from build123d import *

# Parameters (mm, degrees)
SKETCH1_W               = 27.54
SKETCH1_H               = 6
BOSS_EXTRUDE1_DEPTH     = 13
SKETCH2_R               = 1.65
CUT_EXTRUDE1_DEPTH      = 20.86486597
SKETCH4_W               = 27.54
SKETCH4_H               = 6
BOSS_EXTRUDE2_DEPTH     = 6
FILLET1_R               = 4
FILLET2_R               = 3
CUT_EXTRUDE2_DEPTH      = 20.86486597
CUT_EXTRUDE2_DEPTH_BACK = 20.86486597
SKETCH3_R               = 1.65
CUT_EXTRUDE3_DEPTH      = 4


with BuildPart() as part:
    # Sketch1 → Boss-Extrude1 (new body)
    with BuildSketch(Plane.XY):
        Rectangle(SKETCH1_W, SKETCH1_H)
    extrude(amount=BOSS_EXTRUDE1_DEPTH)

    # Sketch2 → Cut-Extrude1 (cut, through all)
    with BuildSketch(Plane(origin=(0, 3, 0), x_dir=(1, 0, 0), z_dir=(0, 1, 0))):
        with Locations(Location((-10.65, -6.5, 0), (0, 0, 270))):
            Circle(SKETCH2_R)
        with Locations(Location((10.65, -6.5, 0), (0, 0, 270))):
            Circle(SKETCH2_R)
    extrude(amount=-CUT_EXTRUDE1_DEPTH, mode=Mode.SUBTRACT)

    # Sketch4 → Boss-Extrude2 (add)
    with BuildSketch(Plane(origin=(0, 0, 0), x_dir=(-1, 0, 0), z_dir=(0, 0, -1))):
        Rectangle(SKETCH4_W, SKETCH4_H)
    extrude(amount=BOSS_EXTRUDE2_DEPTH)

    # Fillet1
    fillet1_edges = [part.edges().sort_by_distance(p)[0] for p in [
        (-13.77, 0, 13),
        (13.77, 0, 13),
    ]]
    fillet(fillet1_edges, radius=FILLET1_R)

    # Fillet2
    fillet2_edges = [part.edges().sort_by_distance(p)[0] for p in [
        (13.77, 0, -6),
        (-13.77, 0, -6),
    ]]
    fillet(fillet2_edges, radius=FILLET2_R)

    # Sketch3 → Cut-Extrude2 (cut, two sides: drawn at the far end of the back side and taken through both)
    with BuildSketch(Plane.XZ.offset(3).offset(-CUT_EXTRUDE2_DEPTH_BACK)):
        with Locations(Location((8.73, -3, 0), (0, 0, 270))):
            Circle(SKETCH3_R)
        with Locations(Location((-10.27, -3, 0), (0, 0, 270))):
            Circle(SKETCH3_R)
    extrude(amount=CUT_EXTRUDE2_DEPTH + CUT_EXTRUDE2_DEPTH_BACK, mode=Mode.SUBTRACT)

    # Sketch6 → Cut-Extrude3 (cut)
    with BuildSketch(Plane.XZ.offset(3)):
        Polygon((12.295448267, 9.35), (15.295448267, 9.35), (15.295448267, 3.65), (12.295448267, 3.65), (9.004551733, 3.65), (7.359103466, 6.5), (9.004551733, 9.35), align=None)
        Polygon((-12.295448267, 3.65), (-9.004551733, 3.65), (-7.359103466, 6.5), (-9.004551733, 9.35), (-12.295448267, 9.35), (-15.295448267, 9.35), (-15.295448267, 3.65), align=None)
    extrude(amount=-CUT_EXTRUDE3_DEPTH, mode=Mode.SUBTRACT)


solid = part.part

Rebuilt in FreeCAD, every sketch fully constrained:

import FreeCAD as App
import Part
import Sketcher
Q = App.Units.Quantity


def edges_at(feature, points):
    """Names of the edges that pass closest to the given points."""
    edges = feature.Shape.Edges
    near = lambda p: min(range(len(edges)), key=lambda i: edges[i].distToShape(Part.Vertex(*p))[0])
    return sorted({f"Edge{near(p) + 1}" for p in points})

doc = App.newDocument("Part")
body = doc.addObject("PartDesign::Body", "Body")

# Sketch on XY plane
sketch1 = doc.addObject("Sketcher::SketchObject", "Sketch")
body.addObject(sketch1)
sketch1.AttachmentSupport = (doc.XY_Plane, [""])
sketch1.MapMode = "FlatFace"
sketch1.addGeometry(Part.LineSegment(App.Vector(-14, 3, 0), App.Vector(-14, -3, 0)), False)
sketch1.addGeometry(Part.LineSegment(App.Vector(-14, -3, 0), App.Vector(14, -3, 0)), False)
sketch1.addGeometry(Part.LineSegment(App.Vector(14, -3, 0), App.Vector(14, 3, 0)), False)
sketch1.addGeometry(Part.LineSegment(App.Vector(14, 3, 0), App.Vector(-14, 3, 0)), False)
sketch1.addConstraint(Sketcher.Constraint("Coincident", 0, 2, 1, 1))
sketch1.addConstraint(Sketcher.Constraint("Coincident", 1, 2, 2, 1))
sketch1.addConstraint(Sketcher.Constraint("Coincident", 2, 2, 3, 1))
sketch1.addConstraint(Sketcher.Constraint("Coincident", 3, 2, 0, 1))
sketch1.addConstraint(Sketcher.Constraint("Vertical", 0))
sketch1.addConstraint(Sketcher.Constraint("Horizontal", 1))
sketch1.addConstraint(Sketcher.Constraint("Vertical", 2))
sketch1.addConstraint(Sketcher.Constraint("Horizontal", 3))
sketch1.addConstraint(Sketcher.Constraint("Symmetric", 0, 2, 2, 2, -1, 1))
sketch1.addConstraint(Sketcher.Constraint("DistanceY", 0, 2, 0, 1, Q("6 mm")))
sketch1.addConstraint(Sketcher.Constraint("DistanceX", 1, 1, 1, 2, Q("27.54 mm")))
pad1 = doc.addObject("PartDesign::Pad", "Pad")
body.addObject(pad1)
pad1.Profile = sketch1
pad1.Length = 13

# Sketch on XZ plane
sketch2 = doc.addObject("Sketcher::SketchObject", "Sketch001")
body.addObject(sketch2)
sketch2.AttachmentSupport = (doc.XZ_Plane, [""])
sketch2.MapMode = "FlatFace"
sketch2.AttachmentOffset = App.Placement(App.Vector(0, 0, -3), App.Rotation())
sketch2.addGeometry(Part.Circle(App.Vector(-10.7, 6.5, 0), App.Vector(0, 0, 1), 1.6), False)
sketch2.addGeometry(Part.Circle(App.Vector(10.7, 6.5, 0), App.Vector(0, 0, 1), 1.6), False)
sketch2.addConstraint(Sketcher.Constraint("Equal", 0, 1))
sketch2.addConstraint(Sketcher.Constraint("Symmetric", 0, 3, 1, 3, -2))
sketch2.addConstraint(Sketcher.Constraint("Diameter", 0, Q("3.3 mm")))
sketch2.addConstraint(Sketcher.Constraint("DistanceY", -1, 1, 0, 3, Q("6.5 mm")))
sketch2.addConstraint(Sketcher.Constraint("DistanceX", 0, 3, 1, 3, Q("21.3 mm")))
pocket1 = doc.addObject("PartDesign::Pocket", "Pocket")
body.addObject(pocket1)
pocket1.Profile = sketch2
pocket1.Type = "ThroughAll"
pocket1.Reversed = True

# Sketch on XY plane
sketch3 = doc.addObject("Sketcher::SketchObject", "Sketch002")
body.addObject(sketch3)
sketch3.AttachmentSupport = (doc.XY_Plane, [""])
sketch3.MapMode = "FlatFace"
sketch3.addGeometry(Part.LineSegment(App.Vector(14, 3, 0), App.Vector(14, -3, 0)), False)
sketch3.addGeometry(Part.LineSegment(App.Vector(14, -3, 0), App.Vector(-14, -3, 0)), False)
sketch3.addGeometry(Part.LineSegment(App.Vector(-14, -3, 0), App.Vector(-14, 3, 0)), False)
sketch3.addGeometry(Part.LineSegment(App.Vector(-14, 3, 0), App.Vector(14, 3, 0)), False)
sketch3.addConstraint(Sketcher.Constraint("Coincident", 0, 2, 1, 1))
sketch3.addConstraint(Sketcher.Constraint("Coincident", 1, 2, 2, 1))
sketch3.addConstraint(Sketcher.Constraint("Coincident", 2, 2, 3, 1))
sketch3.addConstraint(Sketcher.Constraint("Coincident", 3, 2, 0, 1))
sketch3.addConstraint(Sketcher.Constraint("Vertical", 0))
sketch3.addConstraint(Sketcher.Constraint("Horizontal", 1))
sketch3.addConstraint(Sketcher.Constraint("Vertical", 2))
sketch3.addConstraint(Sketcher.Constraint("Horizontal", 3))
sketch3.addConstraint(Sketcher.Constraint("Symmetric", 0, 2, 2, 2, -1, 1))
sketch3.addConstraint(Sketcher.Constraint("DistanceY", 0, 2, 0, 1, Q("6 mm")))
sketch3.addConstraint(Sketcher.Constraint("DistanceX", 1, 2, 1, 1, Q("27.54 mm")))
pad2 = doc.addObject("PartDesign::Pad", "Pad001")
body.addObject(pad2)
pad2.Profile = sketch3
pad2.Length = 6
pad2.Reversed = True
doc.recompute()

fillet = doc.addObject("PartDesign::Fillet", "Fillet")
body.addObject(fillet)
fillet.Base = (pad2, edges_at(pad2, [(-13.77, 0, 13), (13.77, 0, 13)]))
fillet.Radius = 4
doc.recompute()

fillet2 = doc.addObject("PartDesign::Fillet", "Fillet001")
body.addObject(fillet2)
fillet2.Base = (fillet, edges_at(fillet, [(13.77, 0, -6), (-13.77, 0, -6)]))
fillet2.Radius = 3

# Sketch on XZ plane
sketch4 = doc.addObject("Sketcher::SketchObject", "Sketch003")
body.addObject(sketch4)
sketch4.AttachmentSupport = (doc.XZ_Plane, [""])
sketch4.MapMode = "FlatFace"
sketch4.AttachmentOffset = App.Placement(App.Vector(0, 0, 3), App.Rotation())
sketch4.addGeometry(Part.Circle(App.Vector(8.7, -3, 0), App.Vector(0, 0, 1), 1.6), False)
sketch4.addGeometry(Part.Circle(App.Vector(-10.3, -3, 0), App.Vector(0, 0, 1), 1.6), False)
sketch4.addConstraint(Sketcher.Constraint("Equal", 0, 1))
sketch4.addConstraint(Sketcher.Constraint("Horizontal", 0, 3, 1, 3))
sketch4.addConstraint(Sketcher.Constraint("Diameter", 0, Q("3.3 mm")))
sketch4.addConstraint(Sketcher.Constraint("DistanceY", 0, 3, -1, 1, Q("3 mm")))
sketch4.addConstraint(Sketcher.Constraint("DistanceX", 1, 3, 0, 3, Q("19 mm")))
sketch4.addConstraint(Sketcher.Constraint("DistanceX", -1, 1, 0, 3, Q("8.73 mm")))
pocket2 = doc.addObject("PartDesign::Pocket", "Pocket001")
body.addObject(pocket2)
pocket2.Profile = sketch4
pocket2.Type = "ThroughAll"
pocket2.Midplane = True

# Sketch on XZ plane
sketch5 = doc.addObject("Sketcher::SketchObject", "Sketch004")
body.addObject(sketch5)
sketch5.AttachmentSupport = (doc.XZ_Plane, [""])
sketch5.MapMode = "FlatFace"
sketch5.AttachmentOffset = App.Placement(App.Vector(0, 0, 3), App.Rotation())
sketch5.addGeometry(Part.LineSegment(App.Vector(15.3, 9.3, 0), App.Vector(9, 9.3, 0)), False)
sketch5.addGeometry(Part.LineSegment(App.Vector(9, 9.3, 0), App.Vector(7.4, 6.5, 0)), False)
sketch5.addGeometry(Part.LineSegment(App.Vector(7.4, 6.5, 0), App.Vector(9, 3.6, 0)), False)
sketch5.addGeometry(Part.LineSegment(App.Vector(9, 3.6, 0), App.Vector(15.3, 3.6, 0)), False)
sketch5.addGeometry(Part.LineSegment(App.Vector(15.3, 3.6, 0), App.Vector(15.3, 9.3, 0)), False)
sketch5.addGeometry(Part.LineSegment(App.Vector(-9, 3.6, 0), App.Vector(-7.4, 6.5, 0)), False)
sketch5.addGeometry(Part.LineSegment(App.Vector(-7.4, 6.5, 0), App.Vector(-9, 9.3, 0)), False)
sketch5.addGeometry(Part.LineSegment(App.Vector(-9, 9.3, 0), App.Vector(-15.3, 9.3, 0)), False)
sketch5.addGeometry(Part.LineSegment(App.Vector(-15.3, 9.3, 0), App.Vector(-15.3, 3.6, 0)), False)
sketch5.addGeometry(Part.LineSegment(App.Vector(-15.3, 3.6, 0), App.Vector(-9, 3.6, 0)), False)
sketch5.addConstraint(Sketcher.Constraint("Coincident", 0, 2, 1, 1))
sketch5.addConstraint(Sketcher.Constraint("Coincident", 1, 2, 2, 1))
sketch5.addConstraint(Sketcher.Constraint("Coincident", 2, 2, 3, 1))
sketch5.addConstraint(Sketcher.Constraint("Coincident", 3, 2, 4, 1))
sketch5.addConstraint(Sketcher.Constraint("Coincident", 4, 2, 0, 1))
sketch5.addConstraint(Sketcher.Constraint("Coincident", 5, 2, 6, 1))
sketch5.addConstraint(Sketcher.Constraint("Coincident", 6, 2, 7, 1))
sketch5.addConstraint(Sketcher.Constraint("Coincident", 7, 2, 8, 1))
sketch5.addConstraint(Sketcher.Constraint("Coincident", 8, 2, 9, 1))
sketch5.addConstraint(Sketcher.Constraint("Coincident", 9, 2, 5, 1))
sketch5.addConstraint(Sketcher.Constraint("Horizontal", 0))
sketch5.addConstraint(Sketcher.Constraint("Horizontal", 3))
sketch5.addConstraint(Sketcher.Constraint("Vertical", 4))
sketch5.addConstraint(Sketcher.Constraint("Horizontal", 7))
sketch5.addConstraint(Sketcher.Constraint("Vertical", 8))
sketch5.addConstraint(Sketcher.Constraint("Horizontal", 9))
sketch5.addConstraint(Sketcher.Constraint("Symmetric", 1, 2, 5, 2, -2))
sketch5.addConstraint(Sketcher.Constraint("Symmetric", 0, 2, 6, 2, -2))
sketch5.addConstraint(Sketcher.Constraint("Symmetric", 3, 2, 8, 2, -2))
sketch5.addConstraint(Sketcher.Constraint("Parallel", 1, 5))
sketch5.addConstraint(Sketcher.Constraint("Parallel", 2, 6))
sketch5.addConstraint(Sketcher.Constraint("Vertical", 0, 2, 2, 2))
sketch5.addConstraint(Sketcher.Constraint("Angle", 1, Q("-120 deg")))
sketch5.addConstraint(Sketcher.Constraint("DistanceY", 4, 1, 4, 2, Q("5.7 mm")))
sketch5.addConstraint(Sketcher.Constraint("DistanceY", -1, 1, 1, 2, Q("6.5 mm")))
sketch5.addConstraint(Sketcher.Constraint("DistanceX", 6, 2, 4, 2, Q("24.3 mm")))
sketch5.addConstraint(Sketcher.Constraint("DistanceX", 0, 2, 0, 1, Q("6.290897 mm")))
pocket3 = doc.addObject("PartDesign::Pocket", "Pocket002")
body.addObject(pocket3)
pocket3.Profile = sketch5
pocket3.Length = 4

doc.recompute()
